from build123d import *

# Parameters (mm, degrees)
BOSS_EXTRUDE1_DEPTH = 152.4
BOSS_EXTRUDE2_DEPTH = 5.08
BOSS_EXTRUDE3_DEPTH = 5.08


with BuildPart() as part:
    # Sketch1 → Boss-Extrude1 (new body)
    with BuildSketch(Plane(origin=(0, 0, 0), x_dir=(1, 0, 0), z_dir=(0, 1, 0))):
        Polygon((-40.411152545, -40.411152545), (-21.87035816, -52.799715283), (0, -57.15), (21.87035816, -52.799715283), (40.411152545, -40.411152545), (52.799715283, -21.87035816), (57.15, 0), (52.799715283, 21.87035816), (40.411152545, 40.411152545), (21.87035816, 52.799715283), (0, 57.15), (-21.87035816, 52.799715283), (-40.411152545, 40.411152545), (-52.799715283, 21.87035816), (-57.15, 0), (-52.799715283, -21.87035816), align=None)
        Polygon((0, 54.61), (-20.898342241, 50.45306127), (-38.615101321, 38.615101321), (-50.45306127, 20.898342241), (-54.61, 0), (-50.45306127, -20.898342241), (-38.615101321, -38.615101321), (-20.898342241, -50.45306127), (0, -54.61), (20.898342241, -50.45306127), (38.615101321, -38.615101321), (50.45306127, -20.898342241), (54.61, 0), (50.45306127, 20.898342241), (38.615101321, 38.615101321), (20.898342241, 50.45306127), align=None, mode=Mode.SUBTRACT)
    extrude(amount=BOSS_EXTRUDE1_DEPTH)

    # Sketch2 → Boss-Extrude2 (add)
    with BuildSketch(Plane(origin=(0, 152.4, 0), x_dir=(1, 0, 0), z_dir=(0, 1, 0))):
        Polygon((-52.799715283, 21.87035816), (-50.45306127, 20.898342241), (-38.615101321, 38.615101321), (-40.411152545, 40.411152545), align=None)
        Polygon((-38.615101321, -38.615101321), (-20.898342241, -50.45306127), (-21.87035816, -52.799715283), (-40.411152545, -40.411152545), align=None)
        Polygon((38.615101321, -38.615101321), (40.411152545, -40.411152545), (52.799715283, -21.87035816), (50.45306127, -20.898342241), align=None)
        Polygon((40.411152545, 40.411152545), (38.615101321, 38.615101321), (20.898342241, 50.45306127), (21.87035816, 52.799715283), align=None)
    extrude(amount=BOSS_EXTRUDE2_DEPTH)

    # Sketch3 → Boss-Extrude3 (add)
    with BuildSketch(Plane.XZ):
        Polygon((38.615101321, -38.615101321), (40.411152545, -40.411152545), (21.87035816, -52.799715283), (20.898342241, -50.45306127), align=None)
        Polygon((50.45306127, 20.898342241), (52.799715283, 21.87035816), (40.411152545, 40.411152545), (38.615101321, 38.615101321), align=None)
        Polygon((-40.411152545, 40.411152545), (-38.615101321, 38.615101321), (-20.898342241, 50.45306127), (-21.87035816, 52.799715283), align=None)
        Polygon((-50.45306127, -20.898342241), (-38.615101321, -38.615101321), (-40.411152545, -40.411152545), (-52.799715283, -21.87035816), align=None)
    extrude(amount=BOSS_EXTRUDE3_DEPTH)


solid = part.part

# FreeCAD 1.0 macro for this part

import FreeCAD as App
import Part
import Sketcher
from FreeCAD import Vector
Q = App.Units.Quantity


def add_polygon(sketch, points):
    """Adds a closed chain of lines whose ends are joined by coincident constraints."""
    first, n = sketch.GeometryCount, len(points)
    for a, b in zip(points, points[1:] + points[:1]):
        sketch.addGeometry(Part.LineSegment(App.Vector(*a, 0), App.Vector(*b, 0)), False)
    for i in range(n):
        sketch.addConstraint(Sketcher.Constraint("Coincident", first + i, 2, first + (i + 1) % n, 1))

doc = App.newDocument("Part")
body = doc.addObject("PartDesign::Body", "Body")

sketch1 = body.newObject("Sketcher::SketchObject", "Sketch")
sketch1.AttachmentSupport = (doc.getObject("XZ_Plane"), [""])
sketch1.MapMode = "FlatFace"
add_polygon(sketch1, [(-40.411153, 40.411153), (-21.870358, 52.799715), (0, 57.15), (21.870358, 52.799715), (40.411153, 40.411153), (52.799715, 21.870358), (57.15, 0), (52.799715, -21.870358), (40.411153, -40.411153), (21.870358, -52.799715), (0, -57.15), (-21.870358, -52.799715), (-40.411153, -40.411153), (-52.799715, -21.870358), (-57.15, 0), (-52.799715, 21.870358)])
add_polygon(sketch1, [(-20.898342, -50.453061), (0, -54.61), (20.898342, -50.453061), (38.615101, -38.615101), (50.453061, -20.898342), (54.61, 0), (50.453061, 20.898342), (38.615101, 38.615101), (20.898342, 50.453061), (0, 54.61), (-20.898342, 50.453061), (-38.615101, 38.615101), (-50.453061, 20.898342), (-54.61, 0), (-50.453061, -20.898342), (-38.615101, -38.615101)])
sketch1.addConstraint([
    Sketcher.Constraint("Symmetric", 0, 2, 8, 2, -1, 1),
    Sketcher.Constraint("Symmetric", 1, 2, 9, 2, -1, 1),
    Sketcher.Constraint("Symmetric", 2, 2, 10, 2, -1, 1),
    Sketcher.Constraint("Symmetric", 3, 2, 11, 2, -1, 1),
    Sketcher.Constraint("Symmetric", 4, 2, 12, 2, -1, 1),
    Sketcher.Constraint("Symmetric", 5, 2, 13, 2, -1, 1),
    Sketcher.Constraint("Symmetric", 6, 2, 14, 2, -1, 1),
    Sketcher.Constraint("Symmetric", 7, 2, 15, 2, -1, 1),
    Sketcher.Constraint("Symmetric", 16, 2, 24, 2, -1, 1),
    Sketcher.Constraint("Symmetric", 17, 2, 25, 2, -1, 1),
    Sketcher.Constraint("Symmetric", 18, 2, 26, 2, -1, 1),
    Sketcher.Constraint("Symmetric", 19, 2, 27, 2, -1, 1),
    Sketcher.Constraint("Symmetric", 20, 2, 28, 2, -1, 1),
    Sketcher.Constraint("Symmetric", 21, 2, 29, 2, -1, 1),
    Sketcher.Constraint("Symmetric", 22, 2, 30, 2, -1, 1),
    Sketcher.Constraint("Symmetric", 23, 2, 31, 2, -1, 1),
    Sketcher.Constraint("Symmetric", 0, 2, 2, 2, -2),
    Sketcher.Constraint("Symmetric", 7, 2, 11, 2, -2),
    Sketcher.Constraint("Symmetric", 6, 2, 12, 2, -2),
    Sketcher.Constraint("Symmetric", 23, 2, 25, 2, -2),
    Sketcher.Constraint("Symmetric", 22, 2, 26, 2, -2),
    Sketcher.Constraint("Symmetric", 21, 2, 27, 2, -2),
    Sketcher.Constraint("PointOnObject", 1, 2, -2),
    Sketcher.Constraint("PointOnObject", 5, 2, -1),
    Sketcher.Constraint("PointOnObject", 16, 2, -2),
    Sketcher.Constraint("PointOnObject", 20, 2, -1),
    Sketcher.Constraint("Perpendicular", 0, 4),
    Sketcher.Constraint("Perpendicular", 1, 5),
    Sketcher.Constraint("Perpendicular", 14, 16),
    Sketcher.Constraint("Perpendicular", 12, 18),
    Sketcher.Constraint("Parallel", 15, 19),
    Sketcher.Constraint("Perpendicular", 16, 20),
    Sketcher.Constraint("Equal", 0, 1),
    Sketcher.Constraint("Equal", 3, 4),
    Sketcher.Constraint("Equal", 4, 5),
    Sketcher.Constraint("Equal", 17, 18),
    Sketcher.Constraint("Equal", 18, 19),
    Sketcher.Constraint("Equal", 19, 20),
    Sketcher.Constraint("DistanceY", 9, 2, 16, 2, Q("0.1 in")),
    Sketcher.Constraint("DistanceY", -1, 1, 1, 2, Q("2.25 in")),
    Sketcher.Constraint("Angle", 0, Q("33.75 deg")),
    Sketcher.Constraint("Angle", 1, Q("11.25 deg")),
])
pad1 = body.newObject("PartDesign::Pad", "Pad")
pad1.Profile = sketch1
pad1.Length = Q("6 in")
pad1.Reversed = True

sketch2 = body.newObject("Sketcher::SketchObject", "Sketch001")
sketch2.AttachmentSupport = (doc.getObject("XZ_Plane"), [""])
sketch2.MapMode = "FlatFace"
sketch2.AttachmentOffset = App.Placement(Vector(0, 0, -6 * 25.4), App.Rotation())
add_polygon(sketch2, [(-52.799715, -21.870358), (-50.453061, -20.898342), (-38.615101, -38.615101), (-40.411153, -40.411153)])
add_polygon(sketch2, [(-20.898342, 50.453061), (-38.615101, 38.615101), (-40.411153, 40.411153), (-21.870358, 52.799715)])
add_polygon(sketch2, [(38.615101, 38.615101), (40.411153, 40.411153), (52.799715, 21.870358), (50.453061, 20.898342)])
add_polygon(sketch2, [(38.615101, -38.615101), (40.411153, -40.411153), (21.870358, -52.799715), (20.898342, -50.453061)])
sketch2.addConstraint([
    Sketcher.Constraint("Symmetric", 2, 2, 8, 2, -1, 1),
    Sketcher.Constraint("Symmetric", 3, 2, 9, 2, -1, 1),
    Sketcher.Constraint("Symmetric", 0, 2, 10, 2, -1, 1),
    Sketcher.Constraint("Symmetric", 1, 2, 11, 2, -1, 1),
    Sketcher.Constraint("Symmetric", 5, 2, 12, 2, -1, 1),
    Sketcher.Constraint("Symmetric", 6, 2, 13, 2, -1, 1),
    Sketcher.Constraint("Symmetric", 7, 2, 14, 2, -1, 1),
    Sketcher.Constraint("Symmetric", 4, 2, 15, 2, -1, 1),
    Sketcher.Constraint("Symmetric", 5, 2, 8, 2, -2),
    Sketcher.Constraint("Symmetric", 4, 2, 11, 2, -2),
    Sketcher.Constraint("Parallel", 1, 3),
    Sketcher.Constraint("Perpendicular", 3, 4),
    Sketcher.Constraint("Perpendicular", 2, 5),
    Sketcher.Constraint("Parallel", 4, 6),
    Sketcher.Constraint("Perpendicular", 0, 7),
    Sketcher.Constraint("Equal", 0, 2),
    Sketcher.Constraint("Equal", 1, 4),
    Sketcher.Constraint("Distance", 0, Q("0.1 in")),
    Sketcher.Constraint("Angle", 0, Q("22.5 deg")),
    Sketcher.Constraint("DistanceX", 1, 2, -1, 1, Q("38.615101 mm")),
    Sketcher.Constraint("DistanceY", 1, 2, -1, 1, Q("38.615101 mm")),
    Sketcher.Constraint("DistanceX", 0, 2, -1, 1, Q("50.453061 mm")),
])
pad2 = body.newObject("PartDesign::Pad", "Pad001")
pad2.Profile = sketch2
pad2.Length = Q("0.2 in")
pad2.Reversed = True

sketch3 = body.newObject("Sketcher::SketchObject", "Sketch002")
sketch3.AttachmentSupport = (doc.getObject("XZ_Plane"), [""])
sketch3.MapMode = "FlatFace"
add_polygon(sketch3, [(40.411153, -40.411153), (38.615101, -38.615101), (20.898342, -50.453061), (21.870358, -52.799715)])
add_polygon(sketch3, [(50.453061, 20.898342), (52.799715, 21.870358), (40.411153, 40.411153), (38.615101, 38.615101)])
add_polygon(sketch3, [(-40.411153, 40.411153), (-38.615101, 38.615101), (-20.898342, 50.453061), (-21.870358, 52.799715)])
add_polygon(sketch3, [(-38.615101, -38.615101), (-50.453061, -20.898342), (-52.799715, -21.870358), (-40.411153, -40.411153)])
sketch3.addConstraint([
    Sketcher.Constraint("Symmetric", 0, 2, 8, 2, -1, 1),
    Sketcher.Constraint("Symmetric", 1, 2, 9, 2, -1, 1),
    Sketcher.Constraint("Symmetric", 2, 2, 10, 2, -1, 1),
    Sketcher.Constraint("Symmetric", 3, 2, 11, 2, -1, 1),
    Sketcher.Constraint("Symmetric", 7, 2, 12, 2, -1, 1),
    Sketcher.Constraint("Symmetric", 4, 2, 13, 2, -1, 1),
    Sketcher.Constraint("Symmetric", 5, 2, 14, 2, -1, 1),
    Sketcher.Constraint("Symmetric", 6, 2, 15, 2, -1, 1),
    Sketcher.Constraint("Symmetric", 6, 2, 8, 2, -2),
    Sketcher.Constraint("Symmetric", 5, 2, 11, 2, -2),
    Sketcher.Constraint("Parallel", 1, 3),
    Sketcher.Constraint("Perpendicular", 2, 4),
    Sketcher.Constraint("Perpendicular", 3, 5),
    Sketcher.Constraint("Perpendicular", 0, 6),
    Sketcher.Constraint("Parallel", 5, 7),
    Sketcher.Constraint("Equal", 0, 2),
    Sketcher.Constraint("Equal", 3, 5),
    Sketcher.Constraint("Distance", 0, Q("0.1 in")),
    Sketcher.Constraint("Angle", 2, Q("-67.5 deg")),
    Sketcher.Constraint("DistanceX", -1, 1, 0, 2, Q("38.615101 mm")),
    Sketcher.Constraint("DistanceY", 0, 2, -1, 1, Q("38.615101 mm")),
    Sketcher.Constraint("DistanceY", 1, 2, -1, 1, Q("50.453061 mm")),
])
pad3 = body.newObject("PartDesign::Pad", "Pad002")
pad3.Profile = sketch3
pad3.Length = Q("0.2 in")

doc.recompute()
